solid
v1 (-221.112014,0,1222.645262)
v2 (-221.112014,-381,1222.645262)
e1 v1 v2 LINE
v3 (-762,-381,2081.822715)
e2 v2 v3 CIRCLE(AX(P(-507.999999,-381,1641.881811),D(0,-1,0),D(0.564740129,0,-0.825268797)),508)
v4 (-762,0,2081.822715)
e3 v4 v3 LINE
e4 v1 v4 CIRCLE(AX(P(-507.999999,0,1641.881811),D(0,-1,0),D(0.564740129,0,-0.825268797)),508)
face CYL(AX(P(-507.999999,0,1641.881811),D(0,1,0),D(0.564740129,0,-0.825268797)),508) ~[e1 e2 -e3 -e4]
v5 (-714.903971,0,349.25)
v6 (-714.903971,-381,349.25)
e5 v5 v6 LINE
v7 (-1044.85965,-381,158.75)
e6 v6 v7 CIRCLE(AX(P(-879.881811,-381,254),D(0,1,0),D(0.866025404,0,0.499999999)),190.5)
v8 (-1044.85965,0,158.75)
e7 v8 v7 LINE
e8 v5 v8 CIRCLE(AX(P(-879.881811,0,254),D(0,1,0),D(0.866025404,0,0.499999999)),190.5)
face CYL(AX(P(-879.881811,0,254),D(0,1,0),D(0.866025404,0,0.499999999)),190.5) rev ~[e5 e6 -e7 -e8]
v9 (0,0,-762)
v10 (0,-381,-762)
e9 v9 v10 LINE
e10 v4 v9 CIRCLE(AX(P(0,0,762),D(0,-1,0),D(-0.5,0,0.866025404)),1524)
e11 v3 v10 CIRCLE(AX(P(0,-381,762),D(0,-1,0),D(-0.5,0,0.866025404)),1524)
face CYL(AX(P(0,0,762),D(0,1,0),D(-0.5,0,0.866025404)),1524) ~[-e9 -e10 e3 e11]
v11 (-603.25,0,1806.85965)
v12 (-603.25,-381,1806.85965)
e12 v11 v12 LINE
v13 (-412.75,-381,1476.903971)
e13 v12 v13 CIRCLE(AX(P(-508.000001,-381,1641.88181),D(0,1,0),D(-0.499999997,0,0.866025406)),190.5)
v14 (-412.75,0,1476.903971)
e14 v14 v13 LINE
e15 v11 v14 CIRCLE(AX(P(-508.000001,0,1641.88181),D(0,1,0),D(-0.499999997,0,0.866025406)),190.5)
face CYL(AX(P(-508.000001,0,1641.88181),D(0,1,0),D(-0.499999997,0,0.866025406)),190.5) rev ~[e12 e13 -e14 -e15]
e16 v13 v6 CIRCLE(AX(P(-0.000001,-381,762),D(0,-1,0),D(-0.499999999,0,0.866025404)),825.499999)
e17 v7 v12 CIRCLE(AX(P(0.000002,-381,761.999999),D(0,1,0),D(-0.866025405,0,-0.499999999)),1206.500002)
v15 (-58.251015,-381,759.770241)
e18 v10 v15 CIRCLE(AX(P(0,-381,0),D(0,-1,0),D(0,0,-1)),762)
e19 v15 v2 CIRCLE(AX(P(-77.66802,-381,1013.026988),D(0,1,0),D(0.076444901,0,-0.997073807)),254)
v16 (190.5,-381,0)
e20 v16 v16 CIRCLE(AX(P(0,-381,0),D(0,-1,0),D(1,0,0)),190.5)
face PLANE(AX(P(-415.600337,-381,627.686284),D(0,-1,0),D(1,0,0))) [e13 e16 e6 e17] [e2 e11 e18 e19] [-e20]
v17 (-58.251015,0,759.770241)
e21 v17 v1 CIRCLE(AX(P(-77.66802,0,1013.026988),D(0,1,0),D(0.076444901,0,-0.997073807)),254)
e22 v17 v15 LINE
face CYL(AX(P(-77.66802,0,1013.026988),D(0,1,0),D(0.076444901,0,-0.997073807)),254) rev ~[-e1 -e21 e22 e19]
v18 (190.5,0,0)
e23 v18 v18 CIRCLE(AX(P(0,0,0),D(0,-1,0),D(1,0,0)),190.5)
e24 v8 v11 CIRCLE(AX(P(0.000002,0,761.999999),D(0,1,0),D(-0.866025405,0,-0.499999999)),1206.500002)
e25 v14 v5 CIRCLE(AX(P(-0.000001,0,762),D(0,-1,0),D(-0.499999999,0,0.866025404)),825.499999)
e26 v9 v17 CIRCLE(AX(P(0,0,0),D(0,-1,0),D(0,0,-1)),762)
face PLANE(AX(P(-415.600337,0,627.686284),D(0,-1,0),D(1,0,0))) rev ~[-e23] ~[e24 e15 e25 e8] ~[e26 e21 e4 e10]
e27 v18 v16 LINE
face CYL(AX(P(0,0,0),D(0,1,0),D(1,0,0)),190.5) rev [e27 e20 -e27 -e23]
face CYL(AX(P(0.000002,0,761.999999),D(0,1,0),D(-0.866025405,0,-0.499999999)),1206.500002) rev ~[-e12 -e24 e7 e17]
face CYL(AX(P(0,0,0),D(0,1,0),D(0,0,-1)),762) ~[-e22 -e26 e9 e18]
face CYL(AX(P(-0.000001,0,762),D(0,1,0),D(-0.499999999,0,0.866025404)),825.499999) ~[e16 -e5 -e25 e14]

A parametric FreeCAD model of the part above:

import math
import FreeCAD as App
import Part
import Sketcher

V = App.Vector
Q = App.Units.Quantity

doc = App.newDocument("Part")
params = doc.addObject("Spreadsheet::Sheet", "Params")
for row, (alias, value) in enumerate([
    ("sketch1_diameter", "15 in"),
    ("sketch1_radius", "20 in"),
    ("sketch1_radius2", "60 in"),
    ("sketch1_radius3", "30 in"),
    ("sketch1_radius4", "10 in"),
    ("pad1_length", "15 in"),
], start=1):
    params.set(f"A{row}", alias)
    params.set(f"B{row}", "=" + value)
    params.setAlias(f"B{row}", alias)

body = doc.addObject("PartDesign::Body", "Body")

sketch1 = doc.addObject("Sketcher::SketchObject", "Sketch")
body.addObject(sketch1)
sketch1.AttachmentSupport = (doc.XZ_Plane, [""])
sketch1.MapMode = "FlatFace"
sketch1.addGeometry(Part.ArcOfCircle(Part.Circle(V(-507.999999, 1641.881811, 0), V(0, 0, 1), 508), math.radians(-55.615753), math.radians(120)), False)
sketch1.addGeometry(Part.ArcOfCircle(Part.Circle(V(0, 762, 0), V(0, 0, 1), 1524), math.radians(120), math.radians(270)), False)
sketch1.addGeometry(Part.ArcOfCircle(Part.Circle(V(0, 0, 0), V(0, 0, 1), 762), math.radians(-90), math.radians(94.384247)), False)
sketch1.addGeometry(Part.ArcOfCircle(Part.Circle(V(-77.66802, 1013.026988, 0), V(0, 0, 1), 254), math.radians(124.384248), math.radians(274.384247)), False)
sketch1.addGeometry(Part.Circle(V(0, 0, 0), V(0, 0, 1), 190.5), False)
sketch1.addGeometry(Part.ArcOfCircle(Part.Circle(V(0.000002, 761.999999, 0), V(0, 0, 1), 1206.500002), math.radians(120), math.radians(210)), False)
sketch1.addGeometry(Part.ArcOfCircle(Part.Circle(V(-508.000001, 1641.88181, 0), V(0, 0, 1), 190.5), math.radians(-60), math.radians(120)), False)
sketch1.addGeometry(Part.ArcOfCircle(Part.Circle(V(-0.000001, 762, 0), V(0, 0, 1), 825.499999), math.radians(120), math.radians(210)), False)
sketch1.addGeometry(Part.ArcOfCircle(Part.Circle(V(-879.881811, 254, 0), V(0, 0, 1), 190.5), math.radians(-150), math.radians(30)), False)
sketch1.addConstraint(Sketcher.Constraint("Tangent", 0, 2, 1, 1))
sketch1.addConstraint(Sketcher.Constraint("Tangent", 1, 2, 2, 1))
sketch1.addConstraint(Sketcher.Constraint("Tangent", 2, 2, 3, 2))
sketch1.addConstraint(Sketcher.Constraint("Tangent", 3, 1, 0, 1))
sketch1.addConstraint(Sketcher.Constraint("Tangent", 5, 1, 6, 2))
sketch1.addConstraint(Sketcher.Constraint("Tangent", 6, 1, 7, 1))
sketch1.addConstraint(Sketcher.Constraint("Tangent", 7, 2, 8, 2))
sketch1.addConstraint(Sketcher.Constraint("Tangent", 8, 1, 5, 2))
sketch1.addConstraint(Sketcher.Constraint("Coincident", 2, 3, -1, 1))
sketch1.addConstraint(Sketcher.Constraint("Coincident", 4, 3, -1, 1))
sketch1.addConstraint(Sketcher.Constraint("Coincident", 5, 3, 1, 3))
sketch1.addConstraint(Sketcher.Constraint("Coincident", 6, 3, 0, 3))
sketch1.addConstraint(Sketcher.Constraint("Coincident", 7, 3, 1, 3))
sketch1.addConstraint(Sketcher.Constraint("Equal", 4, 6))
sketch1.addConstraint(Sketcher.Constraint("PointOnObject", 1, 3, -2))
sketch1.addConstraint(Sketcher.Constraint("Diameter", 4, Q("15 in")))
sketch1.addConstraint(Sketcher.Constraint("Radius", 0, Q("20 in")))
sketch1.addConstraint(Sketcher.Constraint("Radius", 1, Q("60 in")))
sketch1.addConstraint(Sketcher.Constraint("Radius", 2, Q("30 in")))
sketch1.addConstraint(Sketcher.Constraint("Radius", 3, Q("10 in")))
sketch1.addConstraint(Sketcher.Constraint("DistanceX", 0, 3, -1, 1, Q("20 in")))
sketch1.addConstraint(Sketcher.Constraint("DistanceY", -1, 1, 8, 3, Q("10 in")))
sketch1.setExpression("Constraints[15]", "Params.sketch1_diameter")
sketch1.setExpression("Constraints[16]", "Params.sketch1_radius")
sketch1.setExpression("Constraints[17]", "Params.sketch1_radius2")
sketch1.setExpression("Constraints[18]", "Params.sketch1_radius3")
sketch1.setExpression("Constraints[19]", "Params.sketch1_radius4")
pad1 = doc.addObject("PartDesign::Pad", "Pad")
body.addObject(pad1)
pad1.Profile = sketch1
pad1.setExpression("Length", "Params.pad1_length")

doc.recompute()
